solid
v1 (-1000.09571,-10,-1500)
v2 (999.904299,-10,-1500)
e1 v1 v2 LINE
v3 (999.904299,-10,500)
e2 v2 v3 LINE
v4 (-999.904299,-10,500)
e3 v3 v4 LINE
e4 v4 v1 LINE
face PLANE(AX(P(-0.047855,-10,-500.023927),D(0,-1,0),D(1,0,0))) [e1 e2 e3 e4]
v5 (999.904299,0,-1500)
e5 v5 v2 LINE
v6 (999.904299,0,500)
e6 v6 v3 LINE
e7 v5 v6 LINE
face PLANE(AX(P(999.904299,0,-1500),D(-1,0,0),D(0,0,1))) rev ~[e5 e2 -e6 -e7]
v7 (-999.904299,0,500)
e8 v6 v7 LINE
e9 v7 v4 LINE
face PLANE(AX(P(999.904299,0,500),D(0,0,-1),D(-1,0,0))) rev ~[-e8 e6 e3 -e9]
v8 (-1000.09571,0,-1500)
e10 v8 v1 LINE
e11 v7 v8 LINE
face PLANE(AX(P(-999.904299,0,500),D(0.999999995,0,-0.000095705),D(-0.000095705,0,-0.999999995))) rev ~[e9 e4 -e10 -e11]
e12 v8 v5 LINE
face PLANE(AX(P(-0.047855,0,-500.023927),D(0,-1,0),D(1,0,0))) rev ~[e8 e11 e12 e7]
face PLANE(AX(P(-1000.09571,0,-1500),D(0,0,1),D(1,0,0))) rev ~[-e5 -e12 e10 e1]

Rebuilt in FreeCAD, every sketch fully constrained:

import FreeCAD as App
import Part
import Sketcher

doc = App.newDocument("Part")
body = doc.addObject("PartDesign::Body", "Body")

# Sketch on XZ plane
sketch1 = body.newObject("Sketcher::SketchObject", "Sketch")
sketch1.AttachmentSupport = (doc.getObject("XZ_Plane"), [""])
sketch1.MapMode = "FlatFace"
sketch1.addGeometry([
    Part.LineSegment(App.Vector(-1000, 500, 0), App.Vector(-1000, -1500, 0)),
    Part.LineSegment(App.Vector(-1000, -1500, 0), App.Vector(1000, -1500, 0)),
    Part.LineSegment(App.Vector(1000, -1500, 0), App.Vector(1000, 500, 0)),
    Part.LineSegment(App.Vector(1000, 500, 0), App.Vector(-1000, 500, 0)),
], False)
sketch1.addConstraint([
    Sketcher.Constraint("Coincident", 0, 2, 1, 1),
    Sketcher.Constraint("Coincident", 1, 2, 2, 1),
    Sketcher.Constraint("Coincident", 2, 2, 3, 1),
    Sketcher.Constraint("Coincident", 3, 2, 0, 1),
    Sketcher.Constraint("Horizontal", 1),
    Sketcher.Constraint("Vertical", 2),
    Sketcher.Constraint("Horizontal", 3),
    Sketcher.Constraint("DistanceY", 2, 1, 2, 2, 2000.0),
    Sketcher.Constraint("DistanceY", 0, 2, -1, 1, 1500.0),
    Sketcher.Constraint("DistanceX", 3, 2, 3, 1, 1999.808598),
    Sketcher.Constraint("DistanceX", 1, 1, 1, 2, 2000.000009),
    Sketcher.Constraint("DistanceX", -1, 1, 1, 2, 999.904299),
])
pad1 = body.newObject("PartDesign::Pad", "Pad")
pad1.Profile = sketch1
pad1.Length = 10

doc.recompute()
